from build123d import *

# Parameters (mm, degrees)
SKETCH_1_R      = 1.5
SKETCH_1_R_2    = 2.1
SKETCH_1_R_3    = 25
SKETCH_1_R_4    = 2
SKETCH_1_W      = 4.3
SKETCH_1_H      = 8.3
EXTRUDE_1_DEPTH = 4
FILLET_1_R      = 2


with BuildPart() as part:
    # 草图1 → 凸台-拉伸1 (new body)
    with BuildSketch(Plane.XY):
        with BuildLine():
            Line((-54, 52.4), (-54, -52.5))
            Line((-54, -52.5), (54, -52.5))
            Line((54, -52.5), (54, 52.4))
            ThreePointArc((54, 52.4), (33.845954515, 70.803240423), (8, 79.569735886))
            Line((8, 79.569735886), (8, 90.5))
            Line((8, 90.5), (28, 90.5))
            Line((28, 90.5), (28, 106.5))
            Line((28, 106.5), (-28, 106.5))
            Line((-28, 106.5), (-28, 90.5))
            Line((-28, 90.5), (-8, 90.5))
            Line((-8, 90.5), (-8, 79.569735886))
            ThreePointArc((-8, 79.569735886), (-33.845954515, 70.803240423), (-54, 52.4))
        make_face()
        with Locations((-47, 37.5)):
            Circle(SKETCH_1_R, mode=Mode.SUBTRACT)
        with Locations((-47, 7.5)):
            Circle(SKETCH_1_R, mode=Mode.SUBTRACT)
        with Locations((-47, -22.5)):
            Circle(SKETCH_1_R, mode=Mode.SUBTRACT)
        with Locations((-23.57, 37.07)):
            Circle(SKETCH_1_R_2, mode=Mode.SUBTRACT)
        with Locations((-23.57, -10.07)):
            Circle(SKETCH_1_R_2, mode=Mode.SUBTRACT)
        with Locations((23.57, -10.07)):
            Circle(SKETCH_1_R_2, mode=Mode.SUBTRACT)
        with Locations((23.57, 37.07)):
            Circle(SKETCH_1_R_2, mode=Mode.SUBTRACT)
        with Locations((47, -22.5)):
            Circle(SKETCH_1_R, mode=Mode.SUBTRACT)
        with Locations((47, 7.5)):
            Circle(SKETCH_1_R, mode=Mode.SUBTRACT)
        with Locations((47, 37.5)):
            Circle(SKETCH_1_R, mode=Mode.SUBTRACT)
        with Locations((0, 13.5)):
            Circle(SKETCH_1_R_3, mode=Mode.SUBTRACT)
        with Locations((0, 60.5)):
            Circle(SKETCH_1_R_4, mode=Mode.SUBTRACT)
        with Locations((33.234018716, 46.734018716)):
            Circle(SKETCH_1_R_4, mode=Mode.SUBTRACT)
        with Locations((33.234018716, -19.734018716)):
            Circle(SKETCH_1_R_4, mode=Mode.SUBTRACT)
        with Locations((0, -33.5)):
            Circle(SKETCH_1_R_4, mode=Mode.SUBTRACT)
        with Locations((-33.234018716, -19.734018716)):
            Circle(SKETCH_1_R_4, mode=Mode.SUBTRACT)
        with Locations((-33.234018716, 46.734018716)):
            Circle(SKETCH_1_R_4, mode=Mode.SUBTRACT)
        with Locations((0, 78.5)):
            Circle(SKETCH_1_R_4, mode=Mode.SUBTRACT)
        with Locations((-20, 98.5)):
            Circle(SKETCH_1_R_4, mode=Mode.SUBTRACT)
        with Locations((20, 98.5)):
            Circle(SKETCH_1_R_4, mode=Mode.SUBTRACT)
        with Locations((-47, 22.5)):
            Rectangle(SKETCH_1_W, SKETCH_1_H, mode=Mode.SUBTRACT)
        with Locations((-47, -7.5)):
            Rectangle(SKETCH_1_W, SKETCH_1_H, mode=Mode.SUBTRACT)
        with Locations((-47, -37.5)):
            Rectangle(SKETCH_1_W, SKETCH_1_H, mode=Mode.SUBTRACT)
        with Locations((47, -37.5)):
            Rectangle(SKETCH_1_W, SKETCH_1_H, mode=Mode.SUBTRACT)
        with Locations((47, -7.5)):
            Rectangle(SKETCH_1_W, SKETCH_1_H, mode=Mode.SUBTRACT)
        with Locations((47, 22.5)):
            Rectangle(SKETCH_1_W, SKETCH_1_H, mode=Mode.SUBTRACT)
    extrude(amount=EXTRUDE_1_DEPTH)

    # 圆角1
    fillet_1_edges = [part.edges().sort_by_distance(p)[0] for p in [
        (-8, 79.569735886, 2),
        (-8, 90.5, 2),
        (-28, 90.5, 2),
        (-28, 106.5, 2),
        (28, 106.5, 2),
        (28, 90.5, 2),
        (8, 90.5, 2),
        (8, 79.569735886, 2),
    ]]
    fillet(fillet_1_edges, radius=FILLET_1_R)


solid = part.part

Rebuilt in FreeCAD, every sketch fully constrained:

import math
import FreeCAD as App
import Part
import Sketcher


def edges_at(feature, points):
    """Names of the edges that pass closest to the given points."""
    edges = feature.Shape.Edges
    near = lambda p: min(range(len(edges)), key=lambda i: edges[i].distToShape(Part.Vertex(*p))[0])
    return sorted({f"Edge{near(p) + 1}" for p in points})

doc = App.newDocument("Part")
body = doc.addObject("PartDesign::Body", "Body")

# Sketch on XY plane
sketch1 = doc.addObject("Sketcher::SketchObject", "Sketch")
body.addObject(sketch1)
sketch1.AttachmentSupport = (doc.XY_Plane, [""])
sketch1.MapMode = "FlatFace"
sketch1.addGeometry([
    Part.LineSegment(App.Vector(-54, 52.4, 0), App.Vector(-54, -52.5, 0)),  # 0
    Part.LineSegment(App.Vector(-54, -52.5, 0), App.Vector(54, -52.5, 0)),  # 1
    Part.LineSegment(App.Vector(54, -52.5, 0), App.Vector(54, 52.4, 0)),  # 2
    Part.ArcOfCircle(Part.Circle(App.Vector(0, 13.5, 0), App.Vector(0, 0, 1), 66.55231), math.radians(35.76786), math.radians(83.095997)),  # 3
    Part.LineSegment(App.Vector(8, 79.569736, 0), App.Vector(8, 90.5, 0)),  # 4
    Part.LineSegment(App.Vector(8, 90.5, 0), App.Vector(28, 90.5, 0)),  # 5
    Part.LineSegment(App.Vector(28, 90.5, 0), App.Vector(28, 106.5, 0)),  # 6
    Part.LineSegment(App.Vector(28, 106.5, 0), App.Vector(-28, 106.5, 0)),  # 7
    Part.LineSegment(App.Vector(-28, 106.5, 0), App.Vector(-28, 90.5, 0)),  # 8
    Part.LineSegment(App.Vector(-28, 90.5, 0), App.Vector(-8, 90.5, 0)),  # 9
    Part.LineSegment(App.Vector(-8, 90.5, 0), App.Vector(-8, 79.569736, 0)),  # 10
    Part.ArcOfCircle(Part.Circle(App.Vector(0, 13.5, 0), App.Vector(0, 0, 1), 66.55231), math.radians(96.904003), math.radians(144.23214)),  # 11
    Part.LineSegment(App.Vector(-44.85, -41.65, 0), App.Vector(-49.15, -41.65, 0)),  # 12
    Part.LineSegment(App.Vector(-49.15, -41.65, 0), App.Vector(-49.15, -33.35, 0)),  # 13
    Part.LineSegment(App.Vector(-49.15, -33.35, 0), App.Vector(-44.85, -33.35, 0)),  # 14
    Part.LineSegment(App.Vector(-44.85, -33.35, 0), App.Vector(-44.85, -41.65, 0)),  # 15
    Part.Circle(App.Vector(-47, -22.5, 0), App.Vector(0, 0, 1), 1.5),  # 16
    Part.LineSegment(App.Vector(-44.85, -11.65, 0), App.Vector(-49.15, -11.65, 0)),  # 17
    Part.LineSegment(App.Vector(-49.15, -11.65, 0), App.Vector(-49.15, -3.35, 0)),  # 18
    Part.LineSegment(App.Vector(-49.15, -3.35, 0), App.Vector(-44.85, -3.35, 0)),  # 19
    Part.LineSegment(App.Vector(-44.85, -3.35, 0), App.Vector(-44.85, -11.65, 0)),  # 20
    Part.Circle(App.Vector(-33.234019, -19.734019, 0), App.Vector(0, 0, 1), 2),  # 21
    Part.Circle(App.Vector(-23.57, -10.07, 0), App.Vector(0, 0, 1), 2.1),  # 22
    Part.Circle(App.Vector(-47, 7.5, 0), App.Vector(0, 0, 1), 1.5),  # 23
    Part.LineSegment(App.Vector(-44.85, 18.35, 0), App.Vector(-49.15, 18.35, 0)),  # 24
    Part.LineSegment(App.Vector(-49.15, 18.35, 0), App.Vector(-49.15, 26.65, 0)),  # 25
    Part.LineSegment(App.Vector(-49.15, 26.65, 0), App.Vector(-44.85, 26.65, 0)),  # 26
    Part.LineSegment(App.Vector(-44.85, 26.65, 0), App.Vector(-44.85, 18.35, 0)),  # 27
    Part.Circle(App.Vector(0, -33.5, 0), App.Vector(0, 0, 1), 2),  # 28
    Part.Circle(App.Vector(23.57, -10.07, 0), App.Vector(0, 0, 1), 2.1),  # 29
    Part.LineSegment(App.Vector(49.15, -41.65, 0), App.Vector(44.85, -41.65, 0)),  # 30
    Part.LineSegment(App.Vector(44.85, -41.65, 0), App.Vector(44.85, -33.35, 0)),  # 31
    Part.LineSegment(App.Vector(44.85, -33.35, 0), App.Vector(49.15, -33.35, 0)),  # 32
    Part.LineSegment(App.Vector(49.15, -33.35, 0), App.Vector(49.15, -41.65, 0)),  # 33
    Part.Circle(App.Vector(33.234019, -19.734019, 0), App.Vector(0, 0, 1), 2),  # 34
    Part.Circle(App.Vector(47, -22.5, 0), App.Vector(0, 0, 1), 1.5),  # 35
    Part.LineSegment(App.Vector(49.15, -11.65, 0), App.Vector(44.85, -11.65, 0)),  # 36
    Part.LineSegment(App.Vector(44.85, -11.65, 0), App.Vector(44.85, -3.35, 0)),  # 37
    Part.LineSegment(App.Vector(44.85, -3.35, 0), App.Vector(49.15, -3.35, 0)),  # 38
    Part.LineSegment(App.Vector(49.15, -3.35, 0), App.Vector(49.15, -11.65, 0)),  # 39
    Part.Circle(App.Vector(0, 13.5, 0), App.Vector(0, 0, 1), 25),  # 40
    Part.Circle(App.Vector(47, 7.5, 0), App.Vector(0, 0, 1), 1.5),  # 41
    Part.LineSegment(App.Vector(49.15, 18.35, 0), App.Vector(44.85, 18.35, 0)),  # 42
    Part.LineSegment(App.Vector(44.85, 18.35, 0), App.Vector(44.85, 26.65, 0)),  # 43
    Part.LineSegment(App.Vector(44.85, 26.65, 0), App.Vector(49.15, 26.65, 0)),  # 44
    Part.LineSegment(App.Vector(49.15, 26.65, 0), App.Vector(49.15, 18.35, 0)),  # 45
    Part.Circle(App.Vector(-47, 37.5, 0), App.Vector(0, 0, 1), 1.5),  # 46
    Part.Circle(App.Vector(-33.234019, 46.734019, 0), App.Vector(0, 0, 1), 2),  # 47
    Part.Circle(App.Vector(-23.57, 37.07, 0), App.Vector(0, 0, 1), 2.1),  # 48
    Part.Circle(App.Vector(-20, 98.5, 0), App.Vector(0, 0, 1), 2),  # 49
    Part.Circle(App.Vector(23.57, 37.07, 0), App.Vector(0, 0, 1), 2.1),  # 50
    Part.Circle(App.Vector(0, 60.5, 0), App.Vector(0, 0, 1), 2),  # 51
    Part.Circle(App.Vector(33.234019, 46.734019, 0), App.Vector(0, 0, 1), 2),  # 52
    Part.Circle(App.Vector(47, 37.5, 0), App.Vector(0, 0, 1), 1.5),  # 53
    Part.Circle(App.Vector(0, 78.5, 0), App.Vector(0, 0, 1), 2),  # 54
    Part.Circle(App.Vector(20, 98.5, 0), App.Vector(0, 0, 1), 2),  # 55
], False)
sketch1.addConstraint([
    Sketcher.Constraint("Coincident", 0, 2, 1, 1),
    Sketcher.Constraint("Coincident", 1, 2, 2, 1),
    Sketcher.Constraint("Coincident", 2, 2, 3, 1),
    Sketcher.Constraint("Coincident", 3, 2, 4, 1),
    Sketcher.Constraint("Coincident", 4, 2, 5, 1),
    Sketcher.Constraint("Coincident", 5, 2, 6, 1),
    Sketcher.Constraint("Coincident", 6, 2, 7, 1),
    Sketcher.Constraint("Coincident", 7, 2, 8, 1),
    Sketcher.Constraint("Coincident", 8, 2, 9, 1),
    Sketcher.Constraint("Coincident", 9, 2, 10, 1),
    Sketcher.Constraint("Coincident", 10, 2, 11, 1),
    Sketcher.Constraint("Coincident", 11, 2, 0, 1),
    Sketcher.Constraint("Coincident", 12, 2, 13, 1),
    Sketcher.Constraint("Coincident", 13, 2, 14, 1),
    Sketcher.Constraint("Coincident", 14, 2, 15, 1),
    Sketcher.Constraint("Coincident", 15, 2, 12, 1),
    Sketcher.Constraint("Coincident", 17, 2, 18, 1),
    Sketcher.Constraint("Coincident", 18, 2, 19, 1),
    Sketcher.Constraint("Coincident", 19, 2, 20, 1),
    Sketcher.Constraint("Coincident", 20, 2, 17, 1),
    Sketcher.Constraint("Coincident", 24, 2, 25, 1),
    Sketcher.Constraint("Coincident", 25, 2, 26, 1),
    Sketcher.Constraint("Coincident", 26, 2, 27, 1),
    Sketcher.Constraint("Coincident", 27, 2, 24, 1),
    Sketcher.Constraint("Coincident", 30, 2, 31, 1),
    Sketcher.Constraint("Coincident", 31, 2, 32, 1),
    Sketcher.Constraint("Coincident", 32, 2, 33, 1),
    Sketcher.Constraint("Coincident", 33, 2, 30, 1),
    Sketcher.Constraint("Coincident", 36, 2, 37, 1),
    Sketcher.Constraint("Coincident", 37, 2, 38, 1),
    Sketcher.Constraint("Coincident", 38, 2, 39, 1),
    Sketcher.Constraint("Coincident", 39, 2, 36, 1),
    Sketcher.Constraint("Coincident", 42, 2, 43, 1),
    Sketcher.Constraint("Coincident", 43, 2, 44, 1),
    Sketcher.Constraint("Coincident", 44, 2, 45, 1),
    Sketcher.Constraint("Coincident", 45, 2, 42, 1),
    Sketcher.Constraint("Vertical", 0),
    Sketcher.Constraint("Horizontal", 1),
    Sketcher.Constraint("Vertical", 2),
    Sketcher.Constraint("Vertical", 4),
    Sketcher.Constraint("Horizontal", 5),
    Sketcher.Constraint("Vertical", 6),
    Sketcher.Constraint("Horizontal", 7),
    Sketcher.Constraint("Vertical", 8),
    Sketcher.Constraint("Horizontal", 9),
    Sketcher.Constraint("Vertical", 10),
    Sketcher.Constraint("Horizontal", 12),
    Sketcher.Constraint("Vertical", 13),
    Sketcher.Constraint("Horizontal", 14),
    Sketcher.Constraint("Vertical", 15),
    Sketcher.Constraint("Horizontal", 17),
    Sketcher.Constraint("Vertical", 18),
    Sketcher.Constraint("Horizontal", 19),
    Sketcher.Constraint("Vertical", 20),
    Sketcher.Constraint("Horizontal", 24),
    Sketcher.Constraint("Vertical", 25),
    Sketcher.Constraint("Horizontal", 26),
    Sketcher.Constraint("Vertical", 27),
    Sketcher.Constraint("Horizontal", 30),
    Sketcher.Constraint("Vertical", 31),
    Sketcher.Constraint("Horizontal", 32),
    Sketcher.Constraint("Vertical", 33),
    Sketcher.Constraint("Horizontal", 36),
    Sketcher.Constraint("Vertical", 37),
    Sketcher.Constraint("Horizontal", 38),
    Sketcher.Constraint("Vertical", 39),
    Sketcher.Constraint("Horizontal", 42),
    Sketcher.Constraint("Vertical", 43),
    Sketcher.Constraint("Horizontal", 44),
    Sketcher.Constraint("Vertical", 45),
    Sketcher.Constraint("Coincident", 11, 3, 3, 3),
    Sketcher.Constraint("Coincident", 40, 3, 3, 3),
    Sketcher.Constraint("Equal", 3, 11),
    Sketcher.Constraint("Equal", 16, 23),
    Sketcher.Constraint("Equal", 21, 28),
    Sketcher.Constraint("Equal", 22, 29),
    Sketcher.Constraint("Equal", 28, 34),
    Sketcher.Constraint("Equal", 23, 35),
    Sketcher.Constraint("Equal", 35, 41),
    Sketcher.Constraint("Equal", 41, 46),
    Sketcher.Constraint("Equal", 34, 47),
    Sketcher.Constraint("Equal", 29, 48),
    Sketcher.Constraint("Equal", 47, 49),
    Sketcher.Constraint("Equal", 48, 50),
    Sketcher.Constraint("Equal", 49, 51),
    Sketcher.Constraint("Equal", 51, 52),
    Sketcher.Constraint("Equal", 46, 53),
    Sketcher.Constraint("Equal", 52, 54),
    Sketcher.Constraint("Equal", 54, 55),
    Sketcher.Constraint("Symmetric", 22, 3, 29, 3, -2),
    Sketcher.Constraint("Symmetric", 21, 3, 34, 3, -2),
    Sketcher.Constraint("Symmetric", 16, 3, 35, 3, -2),
    Sketcher.Constraint("Symmetric", 23, 3, 41, 3, -2),
    Sketcher.Constraint("Symmetric", 48, 3, 50, 3, -2),
    Sketcher.Constraint("Symmetric", 47, 3, 52, 3, -2),
    Sketcher.Constraint("Symmetric", 46, 3, 53, 3, -2),
    Sketcher.Constraint("Symmetric", 49, 3, 55, 3, -2),
    Sketcher.Constraint("Symmetric", 5, 2, 8, 2, -2),
    Sketcher.Constraint("Symmetric", 3, 2, 10, 2, -2),
    Sketcher.Constraint("Symmetric", 15, 2, 30, 2, -2),
    Sketcher.Constraint("Symmetric", 13, 2, 32, 2, -2),
    Sketcher.Constraint("Symmetric", 20, 2, 36, 2, -2),
    Sketcher.Constraint("Symmetric", 18, 2, 38, 2, -2),
    Sketcher.Constraint("Symmetric", 27, 2, 42, 2, -2),
    Sketcher.Constraint("Symmetric", 25, 2, 44, 2, -2),
    Sketcher.Constraint("PointOnObject", 28, 3, -2),
    Sketcher.Constraint("PointOnObject", 51, 3, -2),
    Sketcher.Constraint("PointOnObject", 54, 3, -2),
    Sketcher.Constraint("Horizontal", 2, 2, 11, 2),
    Sketcher.Constraint("Vertical", 16, 3, 23, 3),
    Sketcher.Constraint("Vertical", 23, 3, 46, 3),
    Sketcher.Constraint("Vertical", 21, 3, 47, 3),
    Sketcher.Constraint("Vertical", 22, 3, 48, 3),
    Sketcher.Constraint("Vertical", 13, 2, 17, 2),
    Sketcher.Constraint("Vertical", 15, 2, 19, 2),
    Sketcher.Constraint("Vertical", 18, 2, 24, 2),
    Sketcher.Constraint("Vertical", 20, 2, 26, 2),
    Sketcher.Constraint("Equal", 15, 18),
    Sketcher.Constraint("Equal", 20, 25),
    Sketcher.Constraint("Diameter", 16, 3.0),
    Sketcher.Constraint("Diameter", 21, 4.0),
    Sketcher.Constraint("Diameter", 40, 50.0),
    Sketcher.Constraint("Diameter", 22, 4.2),
    Sketcher.Constraint("DistanceX", 1, 1, 1, 2, 108.0),
    Sketcher.Constraint("DistanceX", 5, 1, 5, 2, 20.0),
    Sketcher.Constraint("DistanceX", 7, 2, 7, 1, 56.0),
    Sketcher.Constraint("DistanceY", 6, 1, 6, 2, 16.0),
    Sketcher.Constraint("DistanceX", 12, 2, 12, 1, 4.3),
    Sketcher.Constraint("DistanceY", 0, 2, 0, 1, 104.9),
    Sketcher.Constraint("DistanceY", 13, 1, 13, 2, 8.3),
    Sketcher.Constraint("DistanceX", 16, 3, -1, 1, 47.0),
    Sketcher.Constraint("DistanceX", 49, 3, -1, 1, 20.0),
    Sketcher.Constraint("DistanceY", 16, 3, 3, 3, 36.0),
    Sketcher.Constraint("DistanceY", 16, 3, 23, 3, 30.0),
    Sketcher.Constraint("DistanceY", 28, 3, 3, 3, 47.0),
    Sketcher.Constraint("DistanceY", 23, 3, 46, 3, 30.0),
    Sketcher.Constraint("DistanceY", 46, 3, 49, 3, 61.0),
    Sketcher.Constraint("DistanceY", 51, 3, 49, 3, 38.0),
    Sketcher.Constraint("DistanceY", 51, 3, 54, 3, 18.0),
    Sketcher.Constraint("DistanceY", 0, 2, 16, 3, 30.0),
    Sketcher.Constraint("DistanceY", 54, 3, 4, 2, 12.0),
    Sketcher.Constraint("DistanceY", 17, 2, 24, 2, 30.0),
    Sketcher.Constraint("DistanceY", -1, 1, 3, 3, 13.5),
    Sketcher.Constraint("DistanceY", 13, 2, 17, 2, 21.7),
    Sketcher.Constraint("DistanceX", 22, 3, -1, 1, 23.57),
    Sketcher.Constraint("DistanceY", 22, 3, -1, 1, 10.07),
    Sketcher.Constraint("DistanceY", -1, 1, 48, 3, 37.07),
    Sketcher.Constraint("DistanceX", 12, 2, -1, 1, 49.15),
    Sketcher.Constraint("DistanceY", 12, 2, -1, 1, 41.65),
    Sketcher.Constraint("DistanceX", 21, 3, -1, 1, 33.234019),
    Sketcher.Constraint("DistanceY", 21, 3, -1, 1, 19.734019),
    Sketcher.Constraint("DistanceY", -1, 1, 47, 3, 46.734019),
])
pad1 = doc.addObject("PartDesign::Pad", "Pad")
body.addObject(pad1)
pad1.Profile = sketch1
pad1.Length = 4
doc.recompute()

fillet = doc.addObject("PartDesign::Fillet", "Fillet")
body.addObject(fillet)
fillet.Base = (pad1, edges_at(pad1, [
    (-8, 79.57, 2),
    (-8, 90.5, 2),
    (-28, 90.5, 2),
    (-28, 106.5, 2),
    (28, 106.5, 2),
    (28, 90.5, 2),
    (8, 90.5, 2),
    (8, 79.57, 2),
]))
fillet.Radius = 2

doc.recompute()
